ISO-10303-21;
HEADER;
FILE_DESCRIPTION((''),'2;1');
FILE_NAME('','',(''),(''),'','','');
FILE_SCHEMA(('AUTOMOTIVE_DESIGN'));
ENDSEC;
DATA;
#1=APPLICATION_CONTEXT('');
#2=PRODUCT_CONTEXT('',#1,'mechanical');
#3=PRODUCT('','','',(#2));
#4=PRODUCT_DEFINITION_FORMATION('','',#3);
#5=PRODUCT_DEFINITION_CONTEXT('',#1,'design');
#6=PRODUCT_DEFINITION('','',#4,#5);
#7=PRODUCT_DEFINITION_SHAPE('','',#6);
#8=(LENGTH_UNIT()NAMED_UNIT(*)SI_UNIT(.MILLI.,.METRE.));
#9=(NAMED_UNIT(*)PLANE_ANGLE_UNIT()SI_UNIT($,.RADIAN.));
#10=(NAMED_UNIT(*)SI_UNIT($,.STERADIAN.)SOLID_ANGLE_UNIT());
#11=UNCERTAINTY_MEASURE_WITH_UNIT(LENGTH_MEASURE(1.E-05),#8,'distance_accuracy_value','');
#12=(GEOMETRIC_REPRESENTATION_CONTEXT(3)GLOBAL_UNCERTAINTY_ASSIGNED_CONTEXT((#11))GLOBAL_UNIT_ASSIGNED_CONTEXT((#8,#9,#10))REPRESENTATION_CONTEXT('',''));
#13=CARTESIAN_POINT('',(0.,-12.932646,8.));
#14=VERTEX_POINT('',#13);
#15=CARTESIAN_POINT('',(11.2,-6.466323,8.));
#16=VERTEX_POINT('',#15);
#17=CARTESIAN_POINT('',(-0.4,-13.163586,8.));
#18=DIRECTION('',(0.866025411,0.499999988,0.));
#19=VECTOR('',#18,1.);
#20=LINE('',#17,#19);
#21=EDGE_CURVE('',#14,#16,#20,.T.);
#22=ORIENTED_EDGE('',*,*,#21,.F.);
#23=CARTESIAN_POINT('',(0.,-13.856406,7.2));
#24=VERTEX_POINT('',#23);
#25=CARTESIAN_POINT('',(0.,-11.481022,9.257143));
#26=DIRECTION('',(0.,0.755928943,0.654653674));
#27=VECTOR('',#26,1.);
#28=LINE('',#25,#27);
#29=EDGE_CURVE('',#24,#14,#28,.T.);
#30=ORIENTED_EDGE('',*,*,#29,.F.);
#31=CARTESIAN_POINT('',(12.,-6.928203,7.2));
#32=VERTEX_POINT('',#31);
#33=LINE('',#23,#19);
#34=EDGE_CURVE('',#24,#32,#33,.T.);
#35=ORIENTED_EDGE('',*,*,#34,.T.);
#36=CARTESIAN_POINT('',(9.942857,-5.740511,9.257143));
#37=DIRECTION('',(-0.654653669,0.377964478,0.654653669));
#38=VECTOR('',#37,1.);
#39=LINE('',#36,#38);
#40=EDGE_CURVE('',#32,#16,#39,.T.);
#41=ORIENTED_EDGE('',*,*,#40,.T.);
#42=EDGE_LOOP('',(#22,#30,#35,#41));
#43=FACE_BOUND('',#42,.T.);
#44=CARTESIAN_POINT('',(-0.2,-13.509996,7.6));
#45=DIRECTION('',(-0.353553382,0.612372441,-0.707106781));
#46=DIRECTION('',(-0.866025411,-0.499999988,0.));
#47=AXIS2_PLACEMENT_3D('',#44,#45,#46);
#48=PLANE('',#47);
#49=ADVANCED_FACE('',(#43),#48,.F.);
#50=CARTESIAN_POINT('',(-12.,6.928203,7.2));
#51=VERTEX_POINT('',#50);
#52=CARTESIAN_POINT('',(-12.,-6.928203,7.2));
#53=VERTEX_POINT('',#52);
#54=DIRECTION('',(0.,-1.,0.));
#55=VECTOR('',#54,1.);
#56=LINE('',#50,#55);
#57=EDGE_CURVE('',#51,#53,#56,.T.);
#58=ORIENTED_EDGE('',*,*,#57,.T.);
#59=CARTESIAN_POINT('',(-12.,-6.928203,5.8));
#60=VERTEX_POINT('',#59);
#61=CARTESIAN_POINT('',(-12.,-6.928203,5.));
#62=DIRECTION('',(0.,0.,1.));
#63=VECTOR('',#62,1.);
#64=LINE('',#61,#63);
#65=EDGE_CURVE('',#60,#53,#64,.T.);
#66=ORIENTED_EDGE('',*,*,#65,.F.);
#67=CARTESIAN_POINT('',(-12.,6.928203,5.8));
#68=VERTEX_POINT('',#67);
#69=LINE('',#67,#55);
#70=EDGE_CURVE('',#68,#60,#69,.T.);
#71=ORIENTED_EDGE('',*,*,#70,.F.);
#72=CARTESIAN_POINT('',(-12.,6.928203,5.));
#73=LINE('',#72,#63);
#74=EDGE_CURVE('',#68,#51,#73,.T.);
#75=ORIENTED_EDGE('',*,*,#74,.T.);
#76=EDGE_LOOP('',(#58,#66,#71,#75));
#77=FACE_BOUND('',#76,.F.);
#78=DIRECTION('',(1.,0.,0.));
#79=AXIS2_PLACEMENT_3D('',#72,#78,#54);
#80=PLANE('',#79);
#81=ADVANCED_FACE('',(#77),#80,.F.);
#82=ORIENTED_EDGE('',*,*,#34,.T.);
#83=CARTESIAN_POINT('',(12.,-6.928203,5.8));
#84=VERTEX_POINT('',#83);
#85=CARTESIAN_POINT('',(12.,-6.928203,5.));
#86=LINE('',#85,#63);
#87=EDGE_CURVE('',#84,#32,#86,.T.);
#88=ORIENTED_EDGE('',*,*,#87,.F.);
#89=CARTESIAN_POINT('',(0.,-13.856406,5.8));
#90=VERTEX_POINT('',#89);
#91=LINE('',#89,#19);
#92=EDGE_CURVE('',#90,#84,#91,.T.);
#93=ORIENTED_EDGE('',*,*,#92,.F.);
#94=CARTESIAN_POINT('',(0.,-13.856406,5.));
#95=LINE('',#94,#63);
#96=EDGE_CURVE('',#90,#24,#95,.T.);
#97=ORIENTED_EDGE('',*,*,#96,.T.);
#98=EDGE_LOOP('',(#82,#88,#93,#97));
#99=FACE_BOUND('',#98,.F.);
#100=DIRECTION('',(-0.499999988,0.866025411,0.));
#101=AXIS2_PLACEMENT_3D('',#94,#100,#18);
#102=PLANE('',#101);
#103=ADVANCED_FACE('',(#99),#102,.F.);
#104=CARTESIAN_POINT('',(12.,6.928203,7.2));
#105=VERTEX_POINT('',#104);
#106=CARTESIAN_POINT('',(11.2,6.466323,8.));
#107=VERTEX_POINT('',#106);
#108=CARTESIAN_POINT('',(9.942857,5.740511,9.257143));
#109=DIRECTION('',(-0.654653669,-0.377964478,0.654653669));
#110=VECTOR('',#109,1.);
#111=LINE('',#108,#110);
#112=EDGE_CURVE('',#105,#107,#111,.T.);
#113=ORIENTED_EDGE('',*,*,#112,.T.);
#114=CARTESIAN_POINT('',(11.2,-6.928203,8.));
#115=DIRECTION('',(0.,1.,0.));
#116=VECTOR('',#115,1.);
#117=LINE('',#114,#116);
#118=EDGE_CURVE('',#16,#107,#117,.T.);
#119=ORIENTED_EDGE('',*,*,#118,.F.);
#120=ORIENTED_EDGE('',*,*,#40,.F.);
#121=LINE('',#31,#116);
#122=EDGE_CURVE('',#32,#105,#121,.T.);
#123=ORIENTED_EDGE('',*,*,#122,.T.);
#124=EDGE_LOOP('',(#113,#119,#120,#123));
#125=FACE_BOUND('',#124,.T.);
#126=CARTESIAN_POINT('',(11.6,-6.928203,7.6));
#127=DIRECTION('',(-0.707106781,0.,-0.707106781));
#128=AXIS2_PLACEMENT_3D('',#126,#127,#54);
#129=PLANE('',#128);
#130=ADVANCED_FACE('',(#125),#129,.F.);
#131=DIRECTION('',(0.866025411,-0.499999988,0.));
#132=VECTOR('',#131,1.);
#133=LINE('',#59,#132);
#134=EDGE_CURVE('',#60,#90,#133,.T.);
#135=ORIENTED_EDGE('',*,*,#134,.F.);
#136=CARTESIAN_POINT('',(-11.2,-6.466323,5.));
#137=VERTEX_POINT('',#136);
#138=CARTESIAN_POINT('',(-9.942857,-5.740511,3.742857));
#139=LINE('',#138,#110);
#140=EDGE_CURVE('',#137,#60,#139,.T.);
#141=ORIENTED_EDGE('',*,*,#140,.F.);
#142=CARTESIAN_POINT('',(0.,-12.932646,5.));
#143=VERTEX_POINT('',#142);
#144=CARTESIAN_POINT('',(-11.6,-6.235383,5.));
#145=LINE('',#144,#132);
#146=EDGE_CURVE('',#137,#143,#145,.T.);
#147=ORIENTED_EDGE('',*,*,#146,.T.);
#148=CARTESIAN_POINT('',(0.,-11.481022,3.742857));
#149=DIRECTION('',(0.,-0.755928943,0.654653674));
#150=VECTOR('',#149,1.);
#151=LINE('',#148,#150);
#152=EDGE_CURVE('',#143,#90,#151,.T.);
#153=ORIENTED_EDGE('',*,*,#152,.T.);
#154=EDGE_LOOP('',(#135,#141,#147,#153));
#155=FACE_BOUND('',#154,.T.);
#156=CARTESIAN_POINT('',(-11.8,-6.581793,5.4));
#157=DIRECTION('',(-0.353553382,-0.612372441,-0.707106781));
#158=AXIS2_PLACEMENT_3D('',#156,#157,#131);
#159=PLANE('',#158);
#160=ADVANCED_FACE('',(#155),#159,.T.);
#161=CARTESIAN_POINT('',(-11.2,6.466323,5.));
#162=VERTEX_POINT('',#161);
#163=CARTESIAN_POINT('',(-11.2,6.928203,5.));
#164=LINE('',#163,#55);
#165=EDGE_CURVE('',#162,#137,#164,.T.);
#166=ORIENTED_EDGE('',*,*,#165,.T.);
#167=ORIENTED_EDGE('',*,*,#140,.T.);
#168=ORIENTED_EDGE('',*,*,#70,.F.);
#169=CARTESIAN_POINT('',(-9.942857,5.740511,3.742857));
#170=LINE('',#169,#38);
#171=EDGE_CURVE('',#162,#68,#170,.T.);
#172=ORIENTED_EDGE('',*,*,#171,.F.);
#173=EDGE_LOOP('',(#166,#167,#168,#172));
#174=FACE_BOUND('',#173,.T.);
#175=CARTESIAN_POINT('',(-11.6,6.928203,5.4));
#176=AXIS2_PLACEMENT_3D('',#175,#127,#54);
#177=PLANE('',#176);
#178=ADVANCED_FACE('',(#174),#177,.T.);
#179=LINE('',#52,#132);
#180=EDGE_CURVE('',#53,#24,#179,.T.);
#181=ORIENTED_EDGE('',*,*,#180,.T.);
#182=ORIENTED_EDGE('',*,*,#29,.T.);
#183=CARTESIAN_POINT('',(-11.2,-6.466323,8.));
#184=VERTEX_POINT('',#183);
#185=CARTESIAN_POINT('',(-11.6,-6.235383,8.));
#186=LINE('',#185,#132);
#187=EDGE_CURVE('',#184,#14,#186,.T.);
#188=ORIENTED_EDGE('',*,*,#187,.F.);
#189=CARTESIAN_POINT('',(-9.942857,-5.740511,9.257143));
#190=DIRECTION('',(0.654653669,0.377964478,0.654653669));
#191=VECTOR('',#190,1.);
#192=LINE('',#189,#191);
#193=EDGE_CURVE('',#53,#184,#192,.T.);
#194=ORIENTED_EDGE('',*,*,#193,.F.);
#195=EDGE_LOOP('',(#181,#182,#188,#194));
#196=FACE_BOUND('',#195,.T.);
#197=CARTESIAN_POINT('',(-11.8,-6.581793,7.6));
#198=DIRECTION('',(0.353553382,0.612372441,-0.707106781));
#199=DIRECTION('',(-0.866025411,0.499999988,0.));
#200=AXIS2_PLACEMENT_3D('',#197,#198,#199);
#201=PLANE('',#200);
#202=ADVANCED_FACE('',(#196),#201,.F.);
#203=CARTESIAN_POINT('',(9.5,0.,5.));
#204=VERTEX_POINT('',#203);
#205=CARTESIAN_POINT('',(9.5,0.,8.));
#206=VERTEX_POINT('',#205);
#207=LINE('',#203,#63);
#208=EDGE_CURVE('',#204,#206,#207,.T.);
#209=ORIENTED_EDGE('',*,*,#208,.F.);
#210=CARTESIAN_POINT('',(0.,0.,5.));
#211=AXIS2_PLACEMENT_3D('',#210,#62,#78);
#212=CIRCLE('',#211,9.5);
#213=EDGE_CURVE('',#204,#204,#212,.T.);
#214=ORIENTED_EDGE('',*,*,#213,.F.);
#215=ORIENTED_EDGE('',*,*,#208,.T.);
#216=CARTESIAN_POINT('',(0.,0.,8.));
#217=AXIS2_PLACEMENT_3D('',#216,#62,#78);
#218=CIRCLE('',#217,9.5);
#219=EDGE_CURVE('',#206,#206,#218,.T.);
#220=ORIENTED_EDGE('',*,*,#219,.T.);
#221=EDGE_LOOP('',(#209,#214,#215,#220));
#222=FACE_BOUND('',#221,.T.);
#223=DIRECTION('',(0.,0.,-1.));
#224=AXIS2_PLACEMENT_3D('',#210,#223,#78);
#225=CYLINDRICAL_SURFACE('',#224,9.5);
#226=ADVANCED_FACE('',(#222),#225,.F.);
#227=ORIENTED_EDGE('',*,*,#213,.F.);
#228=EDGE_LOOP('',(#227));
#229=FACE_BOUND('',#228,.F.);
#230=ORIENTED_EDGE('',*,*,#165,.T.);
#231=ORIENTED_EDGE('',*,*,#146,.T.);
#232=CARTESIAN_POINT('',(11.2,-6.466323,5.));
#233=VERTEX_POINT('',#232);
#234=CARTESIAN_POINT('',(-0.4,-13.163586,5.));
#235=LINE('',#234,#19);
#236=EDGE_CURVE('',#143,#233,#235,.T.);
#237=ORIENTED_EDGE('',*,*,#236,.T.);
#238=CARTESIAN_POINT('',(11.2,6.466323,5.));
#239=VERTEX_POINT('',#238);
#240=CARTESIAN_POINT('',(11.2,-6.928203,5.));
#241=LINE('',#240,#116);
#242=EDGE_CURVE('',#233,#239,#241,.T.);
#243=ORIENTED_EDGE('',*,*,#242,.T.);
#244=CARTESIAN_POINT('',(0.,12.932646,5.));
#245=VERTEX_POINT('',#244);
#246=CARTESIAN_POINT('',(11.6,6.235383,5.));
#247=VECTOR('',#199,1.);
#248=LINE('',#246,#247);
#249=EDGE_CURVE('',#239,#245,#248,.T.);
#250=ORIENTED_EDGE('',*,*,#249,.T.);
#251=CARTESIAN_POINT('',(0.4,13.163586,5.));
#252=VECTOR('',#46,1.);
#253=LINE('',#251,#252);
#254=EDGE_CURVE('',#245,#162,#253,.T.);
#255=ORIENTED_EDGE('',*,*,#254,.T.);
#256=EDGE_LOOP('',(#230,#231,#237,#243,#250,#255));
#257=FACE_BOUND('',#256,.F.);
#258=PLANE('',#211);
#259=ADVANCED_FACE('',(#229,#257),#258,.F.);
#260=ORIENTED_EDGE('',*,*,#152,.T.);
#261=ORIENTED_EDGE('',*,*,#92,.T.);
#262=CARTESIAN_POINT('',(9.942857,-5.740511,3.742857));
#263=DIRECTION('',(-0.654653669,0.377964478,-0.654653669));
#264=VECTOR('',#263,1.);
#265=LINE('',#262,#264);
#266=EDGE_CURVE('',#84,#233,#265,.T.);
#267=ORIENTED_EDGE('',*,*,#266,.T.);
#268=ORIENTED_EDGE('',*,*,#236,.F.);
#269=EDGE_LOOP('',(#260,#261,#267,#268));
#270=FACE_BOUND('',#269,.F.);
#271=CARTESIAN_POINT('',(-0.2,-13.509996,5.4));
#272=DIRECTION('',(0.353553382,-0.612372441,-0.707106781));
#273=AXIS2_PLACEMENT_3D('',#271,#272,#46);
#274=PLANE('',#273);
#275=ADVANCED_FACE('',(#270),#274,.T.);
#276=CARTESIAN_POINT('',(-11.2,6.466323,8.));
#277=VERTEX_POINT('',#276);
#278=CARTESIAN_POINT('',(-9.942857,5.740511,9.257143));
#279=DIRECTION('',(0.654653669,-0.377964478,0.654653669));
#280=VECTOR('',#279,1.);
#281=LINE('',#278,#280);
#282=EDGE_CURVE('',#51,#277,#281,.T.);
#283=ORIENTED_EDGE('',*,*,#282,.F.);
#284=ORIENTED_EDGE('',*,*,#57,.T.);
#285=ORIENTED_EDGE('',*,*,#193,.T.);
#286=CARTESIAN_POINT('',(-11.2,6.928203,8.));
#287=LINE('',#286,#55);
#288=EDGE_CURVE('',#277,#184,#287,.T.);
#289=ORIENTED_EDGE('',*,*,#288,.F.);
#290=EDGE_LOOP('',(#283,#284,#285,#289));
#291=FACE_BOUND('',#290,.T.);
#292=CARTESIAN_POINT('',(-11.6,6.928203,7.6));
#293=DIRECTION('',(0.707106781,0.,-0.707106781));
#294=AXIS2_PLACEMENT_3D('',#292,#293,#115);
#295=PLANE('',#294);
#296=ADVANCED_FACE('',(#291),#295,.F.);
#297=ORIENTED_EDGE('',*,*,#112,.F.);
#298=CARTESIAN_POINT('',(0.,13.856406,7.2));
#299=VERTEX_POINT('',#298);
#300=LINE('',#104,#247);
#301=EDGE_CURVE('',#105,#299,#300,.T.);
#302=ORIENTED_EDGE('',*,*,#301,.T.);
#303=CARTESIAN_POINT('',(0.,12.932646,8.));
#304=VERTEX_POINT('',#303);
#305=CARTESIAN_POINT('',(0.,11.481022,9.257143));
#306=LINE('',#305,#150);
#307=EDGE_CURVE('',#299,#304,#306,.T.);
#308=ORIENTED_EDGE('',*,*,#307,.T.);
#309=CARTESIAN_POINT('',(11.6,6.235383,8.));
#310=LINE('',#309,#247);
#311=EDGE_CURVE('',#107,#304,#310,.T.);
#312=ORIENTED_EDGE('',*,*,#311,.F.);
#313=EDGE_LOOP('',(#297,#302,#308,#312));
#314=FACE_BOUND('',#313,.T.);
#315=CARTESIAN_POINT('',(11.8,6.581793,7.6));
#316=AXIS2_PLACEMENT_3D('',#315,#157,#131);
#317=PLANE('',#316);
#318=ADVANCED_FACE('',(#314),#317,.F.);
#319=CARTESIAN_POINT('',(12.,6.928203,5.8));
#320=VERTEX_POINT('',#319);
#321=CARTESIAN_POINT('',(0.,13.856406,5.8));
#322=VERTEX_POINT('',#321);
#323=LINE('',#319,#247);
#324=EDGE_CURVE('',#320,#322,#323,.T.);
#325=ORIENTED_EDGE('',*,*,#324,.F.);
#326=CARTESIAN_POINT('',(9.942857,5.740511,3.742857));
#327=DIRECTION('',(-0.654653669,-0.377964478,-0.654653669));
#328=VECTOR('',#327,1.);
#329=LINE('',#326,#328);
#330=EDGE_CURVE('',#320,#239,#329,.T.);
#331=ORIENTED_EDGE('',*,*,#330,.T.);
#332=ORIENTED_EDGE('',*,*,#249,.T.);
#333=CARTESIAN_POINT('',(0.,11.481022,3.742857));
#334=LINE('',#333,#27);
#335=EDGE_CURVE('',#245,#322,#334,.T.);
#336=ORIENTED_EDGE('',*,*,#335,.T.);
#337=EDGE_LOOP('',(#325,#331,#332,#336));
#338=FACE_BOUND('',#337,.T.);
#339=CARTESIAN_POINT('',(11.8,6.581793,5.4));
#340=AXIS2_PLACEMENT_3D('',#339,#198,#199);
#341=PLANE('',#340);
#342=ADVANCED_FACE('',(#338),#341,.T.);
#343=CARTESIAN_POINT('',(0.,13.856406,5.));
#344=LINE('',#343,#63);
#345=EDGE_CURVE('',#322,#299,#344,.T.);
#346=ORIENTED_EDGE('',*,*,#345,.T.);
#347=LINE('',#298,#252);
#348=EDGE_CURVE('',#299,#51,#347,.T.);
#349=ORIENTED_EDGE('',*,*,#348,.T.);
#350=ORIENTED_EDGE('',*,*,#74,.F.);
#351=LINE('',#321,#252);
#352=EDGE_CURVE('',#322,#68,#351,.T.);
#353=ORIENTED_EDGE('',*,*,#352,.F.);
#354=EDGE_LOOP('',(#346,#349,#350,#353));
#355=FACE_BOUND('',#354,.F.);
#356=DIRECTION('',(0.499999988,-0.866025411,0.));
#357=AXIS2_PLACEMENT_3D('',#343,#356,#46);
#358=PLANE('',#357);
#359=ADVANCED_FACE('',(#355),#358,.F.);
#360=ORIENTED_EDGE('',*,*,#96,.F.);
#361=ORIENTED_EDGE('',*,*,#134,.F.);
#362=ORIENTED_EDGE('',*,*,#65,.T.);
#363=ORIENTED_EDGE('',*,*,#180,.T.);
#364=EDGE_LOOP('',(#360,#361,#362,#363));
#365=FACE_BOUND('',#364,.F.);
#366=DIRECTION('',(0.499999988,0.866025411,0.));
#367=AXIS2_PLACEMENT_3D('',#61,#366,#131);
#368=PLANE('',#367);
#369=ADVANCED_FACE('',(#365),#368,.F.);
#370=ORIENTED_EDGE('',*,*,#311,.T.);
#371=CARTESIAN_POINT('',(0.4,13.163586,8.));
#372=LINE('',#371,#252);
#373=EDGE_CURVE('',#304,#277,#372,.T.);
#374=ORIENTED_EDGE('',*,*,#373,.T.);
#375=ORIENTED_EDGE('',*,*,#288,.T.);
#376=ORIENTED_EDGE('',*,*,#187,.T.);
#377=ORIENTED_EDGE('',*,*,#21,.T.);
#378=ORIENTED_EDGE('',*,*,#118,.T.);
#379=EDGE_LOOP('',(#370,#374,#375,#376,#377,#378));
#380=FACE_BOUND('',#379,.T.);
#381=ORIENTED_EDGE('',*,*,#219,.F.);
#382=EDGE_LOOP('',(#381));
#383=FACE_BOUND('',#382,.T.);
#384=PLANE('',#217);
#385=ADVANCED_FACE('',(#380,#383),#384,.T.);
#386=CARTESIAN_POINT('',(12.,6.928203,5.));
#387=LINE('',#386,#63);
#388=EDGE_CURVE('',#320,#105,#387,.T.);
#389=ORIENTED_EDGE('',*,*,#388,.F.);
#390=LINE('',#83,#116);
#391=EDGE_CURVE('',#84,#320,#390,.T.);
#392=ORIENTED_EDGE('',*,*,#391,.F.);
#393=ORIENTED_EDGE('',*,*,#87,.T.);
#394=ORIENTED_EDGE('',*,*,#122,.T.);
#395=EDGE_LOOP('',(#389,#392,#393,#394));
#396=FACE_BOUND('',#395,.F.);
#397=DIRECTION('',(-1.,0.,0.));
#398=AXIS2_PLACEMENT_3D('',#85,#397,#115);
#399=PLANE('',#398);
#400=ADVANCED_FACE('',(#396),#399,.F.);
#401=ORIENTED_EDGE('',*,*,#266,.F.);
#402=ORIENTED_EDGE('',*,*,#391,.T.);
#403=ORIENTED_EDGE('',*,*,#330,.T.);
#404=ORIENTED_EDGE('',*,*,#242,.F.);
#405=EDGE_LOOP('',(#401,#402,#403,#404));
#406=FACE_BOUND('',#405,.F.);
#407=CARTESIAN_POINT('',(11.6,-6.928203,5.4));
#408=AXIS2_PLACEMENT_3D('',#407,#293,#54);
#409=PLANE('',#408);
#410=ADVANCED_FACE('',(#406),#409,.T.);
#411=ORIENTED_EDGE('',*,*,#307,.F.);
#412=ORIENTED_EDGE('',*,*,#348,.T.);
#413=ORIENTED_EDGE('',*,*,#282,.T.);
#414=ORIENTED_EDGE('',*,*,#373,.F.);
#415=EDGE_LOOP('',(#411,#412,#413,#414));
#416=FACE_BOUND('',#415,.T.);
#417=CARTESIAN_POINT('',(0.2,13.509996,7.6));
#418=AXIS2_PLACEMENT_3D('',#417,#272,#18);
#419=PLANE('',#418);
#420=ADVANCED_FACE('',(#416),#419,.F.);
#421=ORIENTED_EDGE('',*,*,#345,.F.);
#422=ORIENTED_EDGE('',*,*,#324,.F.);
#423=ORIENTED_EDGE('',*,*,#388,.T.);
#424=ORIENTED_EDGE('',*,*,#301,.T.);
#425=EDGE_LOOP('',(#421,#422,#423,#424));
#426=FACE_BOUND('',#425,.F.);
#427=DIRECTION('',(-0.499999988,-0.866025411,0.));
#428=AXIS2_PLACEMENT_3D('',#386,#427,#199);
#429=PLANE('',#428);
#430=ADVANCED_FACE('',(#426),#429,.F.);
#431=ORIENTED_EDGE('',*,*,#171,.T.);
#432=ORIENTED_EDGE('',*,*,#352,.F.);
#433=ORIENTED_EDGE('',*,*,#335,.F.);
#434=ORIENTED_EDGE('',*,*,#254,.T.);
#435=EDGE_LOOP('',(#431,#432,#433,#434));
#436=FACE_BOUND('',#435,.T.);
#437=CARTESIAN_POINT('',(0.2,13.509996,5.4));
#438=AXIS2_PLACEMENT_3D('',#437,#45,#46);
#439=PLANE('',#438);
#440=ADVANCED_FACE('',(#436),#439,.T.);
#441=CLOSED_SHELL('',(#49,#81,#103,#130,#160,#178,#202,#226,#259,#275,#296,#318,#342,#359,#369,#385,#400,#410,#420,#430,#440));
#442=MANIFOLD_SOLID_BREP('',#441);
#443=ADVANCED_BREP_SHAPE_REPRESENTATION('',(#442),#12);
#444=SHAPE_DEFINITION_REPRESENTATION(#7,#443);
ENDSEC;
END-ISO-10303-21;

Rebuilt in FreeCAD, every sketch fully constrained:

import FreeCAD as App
import Part
import Sketcher
from FreeCAD import Vector
Q = App.Units.Quantity


def edges_at(feature, points):
    """Names of the edges that pass closest to the given points."""
    edges = feature.Shape.Edges
    near = lambda p: min(range(len(edges)), key=lambda i: edges[i].distToShape(Part.Vertex(*p))[0])
    return sorted({f"Edge{near(p) + 1}" for p in points})


def add_polygon(sketch, points):
    """Adds a closed chain of lines whose ends are joined by coincident constraints."""
    first, n = sketch.GeometryCount, len(points)
    for a, b in zip(points, points[1:] + points[:1]):
        sketch.addGeometry(Part.LineSegment(App.Vector(*a, 0), App.Vector(*b, 0)), False)
    for i in range(n):
        sketch.addConstraint(Sketcher.Constraint("Coincident", first + i, 2, first + (i + 1) % n, 1))

doc = App.newDocument("Part")
body = doc.addObject("PartDesign::Body", "Body")

sketch1 = doc.addObject("Sketcher::SketchObject", "Sketch")
body.addObject(sketch1)
sketch1.AttachmentSupport = (doc.XY_Plane, [""])
sketch1.MapMode = "FlatFace"
add_polygon(sketch1, [(12, -7), (12, 7), (0, 14), (-12, 7), (-12, -7), (0, -14)])
sketch1.addGeometry(Part.Circle(Vector(0, 0, 0), Vector(0, 0, 1), 10), False)
sketch1.addConstraint([
    Sketcher.Constraint("Vertical", 0),
    Sketcher.Constraint("Vertical", 3),
    Sketcher.Constraint("Coincident", 6, 3, -1, 1),
    Sketcher.Constraint("Symmetric", 0, 2, 3, 2, -1, 1),
    Sketcher.Constraint("Symmetric", 1, 2, 4, 2, -1, 1),
    Sketcher.Constraint("PointOnObject", 1, 2, -2),
    Sketcher.Constraint("Parallel", 2, 5),
    Sketcher.Constraint("Horizontal", 0, 2, 2, 2),
    Sketcher.Constraint("Diameter", 6, Q("19 mm")),
    Sketcher.Constraint("Angle", 1, Q("150.000001 deg")),
    Sketcher.Constraint("DistanceX", -1, 1, 0, 2, Q("12 mm")),
    Sketcher.Constraint("DistanceY", 0, 1, 0, 2, Q("13.856406 mm")),
])
pad1 = doc.addObject("PartDesign::Pad", "Pad")
body.addObject(pad1)
pad1.Profile = sketch1
pad1.Length = 3
doc.recompute()

chamfer = doc.addObject("PartDesign::Chamfer", "Chamfer")
body.addObject(chamfer)
chamfer.Base = (pad1, edges_at(pad1, [
    (12, 0, 3),
    (6, -10.392, 3),
    (-6, -10.392, 3),
    (-12, 0, 3),
    (-6, 10.392, 3),
    (6, 10.392, 3),
]))
chamfer.Size = 0.8
doc.recompute()

chamfer2 = doc.addObject("PartDesign::Chamfer", "Chamfer001")
body.addObject(chamfer2)
chamfer2.Base = (chamfer, edges_at(chamfer, [
    (-6, 10.392, 0),
    (-12, 0, 0),
    (-6, -10.392, 0),
    (6, -10.392, 0),
    (12, 0, 0),
    (6, 10.392, 0),
]))
chamfer2.Size = 0.8
body2 = doc.addObject("PartDesign::Body", "Body001")
doc.recompute()

body.Placement = App.Placement(Vector(0, 0, 5), App.Rotation(Vector(0, 0, 1), 0))
boolean = doc.addObject("PartDesign::Boolean", "Boolean")
body2.addObject(boolean)
boolean.Type = "Fuse"
boolean.addObjects([body])

doc.recompute()
